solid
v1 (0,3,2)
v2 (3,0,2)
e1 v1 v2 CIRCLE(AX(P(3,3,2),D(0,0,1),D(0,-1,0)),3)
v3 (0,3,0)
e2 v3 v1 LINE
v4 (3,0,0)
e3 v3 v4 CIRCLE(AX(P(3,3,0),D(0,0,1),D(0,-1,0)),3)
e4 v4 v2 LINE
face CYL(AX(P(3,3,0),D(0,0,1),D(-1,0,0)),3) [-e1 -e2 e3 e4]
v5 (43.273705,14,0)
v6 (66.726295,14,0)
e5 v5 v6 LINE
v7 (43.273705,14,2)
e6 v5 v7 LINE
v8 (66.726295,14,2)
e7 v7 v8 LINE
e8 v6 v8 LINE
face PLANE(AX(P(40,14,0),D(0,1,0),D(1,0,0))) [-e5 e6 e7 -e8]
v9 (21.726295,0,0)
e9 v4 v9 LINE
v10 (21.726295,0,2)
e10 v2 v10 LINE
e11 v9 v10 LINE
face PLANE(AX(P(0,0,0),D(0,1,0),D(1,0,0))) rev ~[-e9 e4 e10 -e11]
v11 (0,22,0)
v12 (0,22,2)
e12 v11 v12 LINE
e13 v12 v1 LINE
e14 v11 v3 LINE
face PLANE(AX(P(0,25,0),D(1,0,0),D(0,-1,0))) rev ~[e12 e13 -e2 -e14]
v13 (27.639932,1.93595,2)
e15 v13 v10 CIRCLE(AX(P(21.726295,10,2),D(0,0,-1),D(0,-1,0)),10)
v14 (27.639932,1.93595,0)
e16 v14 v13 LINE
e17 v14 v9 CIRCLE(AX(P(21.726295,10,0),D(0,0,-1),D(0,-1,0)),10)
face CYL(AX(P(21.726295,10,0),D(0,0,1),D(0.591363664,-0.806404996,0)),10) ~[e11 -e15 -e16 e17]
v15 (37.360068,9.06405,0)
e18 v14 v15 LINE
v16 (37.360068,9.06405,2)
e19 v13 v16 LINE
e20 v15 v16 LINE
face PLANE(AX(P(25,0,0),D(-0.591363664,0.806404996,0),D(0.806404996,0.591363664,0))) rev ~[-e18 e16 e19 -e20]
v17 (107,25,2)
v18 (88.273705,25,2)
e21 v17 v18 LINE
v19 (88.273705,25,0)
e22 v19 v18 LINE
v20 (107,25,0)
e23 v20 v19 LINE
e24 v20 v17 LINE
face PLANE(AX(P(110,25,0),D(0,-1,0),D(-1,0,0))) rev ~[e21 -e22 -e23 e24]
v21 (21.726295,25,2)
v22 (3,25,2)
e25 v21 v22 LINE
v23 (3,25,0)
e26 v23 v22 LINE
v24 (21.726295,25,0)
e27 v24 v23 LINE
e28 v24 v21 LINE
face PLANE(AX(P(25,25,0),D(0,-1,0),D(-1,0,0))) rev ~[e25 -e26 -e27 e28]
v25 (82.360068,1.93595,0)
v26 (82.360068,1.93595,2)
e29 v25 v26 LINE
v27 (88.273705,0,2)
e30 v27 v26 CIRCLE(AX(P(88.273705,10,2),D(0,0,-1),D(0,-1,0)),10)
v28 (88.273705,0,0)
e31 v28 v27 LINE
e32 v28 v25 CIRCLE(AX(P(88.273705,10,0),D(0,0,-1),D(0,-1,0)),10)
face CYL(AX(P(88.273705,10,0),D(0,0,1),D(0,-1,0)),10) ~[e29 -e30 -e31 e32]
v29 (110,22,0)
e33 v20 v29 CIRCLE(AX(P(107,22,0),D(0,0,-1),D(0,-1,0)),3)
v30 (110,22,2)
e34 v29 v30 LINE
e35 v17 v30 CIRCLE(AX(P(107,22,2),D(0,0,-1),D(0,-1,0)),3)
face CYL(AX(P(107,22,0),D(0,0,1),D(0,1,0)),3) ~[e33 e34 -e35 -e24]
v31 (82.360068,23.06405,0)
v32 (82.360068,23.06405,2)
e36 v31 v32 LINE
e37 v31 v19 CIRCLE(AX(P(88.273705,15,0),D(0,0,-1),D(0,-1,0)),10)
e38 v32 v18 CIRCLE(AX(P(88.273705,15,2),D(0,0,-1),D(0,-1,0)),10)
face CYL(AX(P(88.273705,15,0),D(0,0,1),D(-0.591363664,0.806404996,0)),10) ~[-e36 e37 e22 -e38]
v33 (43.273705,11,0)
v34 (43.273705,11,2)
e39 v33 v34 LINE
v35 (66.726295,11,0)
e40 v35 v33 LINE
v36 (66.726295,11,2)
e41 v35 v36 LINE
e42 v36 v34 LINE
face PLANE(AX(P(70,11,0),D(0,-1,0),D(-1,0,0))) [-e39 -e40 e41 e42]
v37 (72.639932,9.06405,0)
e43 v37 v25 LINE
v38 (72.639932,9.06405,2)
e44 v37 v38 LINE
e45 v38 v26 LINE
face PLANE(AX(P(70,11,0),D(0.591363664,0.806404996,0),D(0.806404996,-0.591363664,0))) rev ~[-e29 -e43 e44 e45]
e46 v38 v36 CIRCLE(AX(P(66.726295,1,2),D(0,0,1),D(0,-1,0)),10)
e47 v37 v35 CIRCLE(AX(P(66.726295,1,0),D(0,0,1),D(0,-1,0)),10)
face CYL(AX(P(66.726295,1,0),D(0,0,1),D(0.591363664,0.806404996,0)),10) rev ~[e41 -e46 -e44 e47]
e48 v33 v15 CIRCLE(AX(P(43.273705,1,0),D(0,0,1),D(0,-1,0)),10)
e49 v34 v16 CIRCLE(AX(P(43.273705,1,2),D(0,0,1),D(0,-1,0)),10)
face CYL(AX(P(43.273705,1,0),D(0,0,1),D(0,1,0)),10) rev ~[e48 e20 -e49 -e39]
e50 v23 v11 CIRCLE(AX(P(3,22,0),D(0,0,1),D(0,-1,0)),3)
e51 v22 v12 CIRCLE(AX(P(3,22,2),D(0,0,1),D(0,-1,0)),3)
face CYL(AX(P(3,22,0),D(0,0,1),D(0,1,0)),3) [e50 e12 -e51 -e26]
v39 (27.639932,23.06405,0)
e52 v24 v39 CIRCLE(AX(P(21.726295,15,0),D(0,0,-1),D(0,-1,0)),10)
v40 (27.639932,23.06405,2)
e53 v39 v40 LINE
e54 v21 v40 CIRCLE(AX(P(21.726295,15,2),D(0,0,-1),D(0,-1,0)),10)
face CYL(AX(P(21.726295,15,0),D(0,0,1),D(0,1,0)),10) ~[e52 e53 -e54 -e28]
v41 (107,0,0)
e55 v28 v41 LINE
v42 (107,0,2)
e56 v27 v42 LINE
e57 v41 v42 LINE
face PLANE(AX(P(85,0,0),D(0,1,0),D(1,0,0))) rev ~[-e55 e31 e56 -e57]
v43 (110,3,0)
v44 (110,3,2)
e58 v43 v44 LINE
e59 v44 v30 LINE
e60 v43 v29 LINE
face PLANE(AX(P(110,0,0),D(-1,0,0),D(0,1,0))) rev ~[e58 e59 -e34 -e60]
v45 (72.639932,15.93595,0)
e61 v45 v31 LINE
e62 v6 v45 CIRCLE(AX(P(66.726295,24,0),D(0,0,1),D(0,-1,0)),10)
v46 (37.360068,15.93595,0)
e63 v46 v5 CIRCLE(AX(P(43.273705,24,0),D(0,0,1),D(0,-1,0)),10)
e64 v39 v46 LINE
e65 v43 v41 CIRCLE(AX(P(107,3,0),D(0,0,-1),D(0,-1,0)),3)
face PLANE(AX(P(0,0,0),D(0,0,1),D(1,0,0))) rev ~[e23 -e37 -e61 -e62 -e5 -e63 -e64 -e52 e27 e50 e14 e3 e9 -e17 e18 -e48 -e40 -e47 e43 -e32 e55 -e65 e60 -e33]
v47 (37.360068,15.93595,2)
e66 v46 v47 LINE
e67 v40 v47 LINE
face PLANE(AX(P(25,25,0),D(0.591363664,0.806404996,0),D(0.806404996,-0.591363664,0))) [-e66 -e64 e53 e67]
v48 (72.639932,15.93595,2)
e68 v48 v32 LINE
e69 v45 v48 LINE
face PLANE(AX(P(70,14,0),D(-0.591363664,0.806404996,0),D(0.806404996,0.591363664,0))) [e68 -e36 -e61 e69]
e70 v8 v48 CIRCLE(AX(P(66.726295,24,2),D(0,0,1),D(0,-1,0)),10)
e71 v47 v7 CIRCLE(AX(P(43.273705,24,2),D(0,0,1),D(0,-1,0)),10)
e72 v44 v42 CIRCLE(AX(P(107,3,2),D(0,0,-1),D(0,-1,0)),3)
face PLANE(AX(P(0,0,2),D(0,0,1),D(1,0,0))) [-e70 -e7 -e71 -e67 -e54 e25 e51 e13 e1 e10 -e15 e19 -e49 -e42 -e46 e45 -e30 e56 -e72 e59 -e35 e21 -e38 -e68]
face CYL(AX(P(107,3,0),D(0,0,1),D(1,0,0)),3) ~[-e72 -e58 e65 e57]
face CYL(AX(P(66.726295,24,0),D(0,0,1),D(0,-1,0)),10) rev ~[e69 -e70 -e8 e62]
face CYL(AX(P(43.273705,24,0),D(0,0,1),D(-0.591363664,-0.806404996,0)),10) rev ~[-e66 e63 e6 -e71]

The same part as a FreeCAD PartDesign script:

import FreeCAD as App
import Part
import Sketcher


def edges_at(feature, points):
    """Names of the edges that pass closest to the given points."""
    edges = feature.Shape.Edges
    near = lambda p: min(range(len(edges)), key=lambda i: edges[i].distToShape(Part.Vertex(*p))[0])
    return sorted({f"Edge{near(p) + 1}" for p in points})

doc = App.newDocument("Part")
body = doc.addObject("PartDesign::Body", "Body")

sketch1 = body.newObject("Sketcher::SketchObject", "Sketch")
sketch1.AttachmentSupport = (doc.getObject("XY_Plane"), [""])
sketch1.MapMode = "FlatFace"
sketch1.addGeometry([
    Part.LineSegment(App.Vector(0, 25, 0), App.Vector(0, 0, 0)),
    Part.LineSegment(App.Vector(0, 0, 0), App.Vector(25, 0, 0)),
    Part.LineSegment(App.Vector(25, 0, 0), App.Vector(40, 11, 0)),
    Part.LineSegment(App.Vector(40, 11, 0), App.Vector(70, 11, 0)),
    Part.LineSegment(App.Vector(70, 11, 0), App.Vector(85, 0, 0)),
    Part.LineSegment(App.Vector(85, 0, 0), App.Vector(110, 0, 0)),
    Part.LineSegment(App.Vector(110, 0, 0), App.Vector(110, 25, 0)),
    Part.LineSegment(App.Vector(110, 25, 0), App.Vector(85, 25, 0)),
    Part.LineSegment(App.Vector(85, 25, 0), App.Vector(70, 14, 0)),
    Part.LineSegment(App.Vector(70, 14, 0), App.Vector(40, 14, 0)),
    Part.LineSegment(App.Vector(40, 14, 0), App.Vector(25, 25, 0)),
    Part.LineSegment(App.Vector(25, 25, 0), App.Vector(0, 25, 0)),
], False)
sketch1.addConstraint([
    Sketcher.Constraint("Coincident", 0, 2, 1, 1),
    Sketcher.Constraint("Coincident", 1, 2, 2, 1),
    Sketcher.Constraint("Coincident", 2, 2, 3, 1),
    Sketcher.Constraint("Coincident", 3, 2, 4, 1),
    Sketcher.Constraint("Coincident", 4, 2, 5, 1),
    Sketcher.Constraint("Coincident", 5, 2, 6, 1),
    Sketcher.Constraint("Coincident", 6, 2, 7, 1),
    Sketcher.Constraint("Coincident", 7, 2, 8, 1),
    Sketcher.Constraint("Coincident", 8, 2, 9, 1),
    Sketcher.Constraint("Coincident", 9, 2, 10, 1),
    Sketcher.Constraint("Coincident", 10, 2, 11, 1),
    Sketcher.Constraint("Coincident", 11, 2, 0, 1),
    Sketcher.Constraint("Vertical", 0),
    Sketcher.Constraint("Horizontal", 1),
    Sketcher.Constraint("Horizontal", 3),
    Sketcher.Constraint("Horizontal", 5),
    Sketcher.Constraint("Vertical", 6),
    Sketcher.Constraint("Horizontal", 7),
    Sketcher.Constraint("Horizontal", 9),
    Sketcher.Constraint("Horizontal", 11),
    Sketcher.Constraint("Coincident", 0, 2, -1, 1),
    Sketcher.Constraint("PointOnObject", 4, 2, -1),
    Sketcher.Constraint("Parallel", 2, 8),
    Sketcher.Constraint("Parallel", 4, 10),
    Sketcher.Constraint("Horizontal", 7, 2, 10, 2),
    Sketcher.Constraint("Vertical", 4, 2, 7, 2),
    Sketcher.Constraint("Vertical", 3, 2, 8, 2),
    Sketcher.Constraint("Vertical", 2, 2, 9, 2),
    Sketcher.Constraint("Vertical", 1, 2, 10, 2),
    Sketcher.Constraint("Equal", 1, 5),
    Sketcher.Constraint("Equal", 11, 0),
    Sketcher.Constraint("DistanceX", 1, 1, 1, 2, 25.0),
    Sketcher.Constraint("DistanceX", 3, 1, 3, 2, 30.0),
    Sketcher.Constraint("DistanceX", -1, 1, 5, 2, 110.0),
    Sketcher.Constraint("DistanceY", 3, 2, 8, 2, 3.0),
])
pad1 = body.newObject("PartDesign::Pad", "Pad")
pad1.Profile = sketch1
pad1.Length = 2
doc.recompute()

fillet = body.newObject("PartDesign::Fillet", "Fillet")
fillet.Base = (pad1, edges_at(pad1, [
    (25, 25, 1),
    (40, 14, 1),
    (70, 14, 1),
    (85, 25, 1),
    (25, 0, 1),
    (40, 11, 1),
    (70, 11, 1),
    (85, 0, 1),
]))
fillet.Radius = 10
doc.recompute()

fillet2 = body.newObject("PartDesign::Fillet", "Fillet001")
fillet2.Base = (fillet, edges_at(fillet, [
    (0, 25, 1),
    (0, 0, 1),
    (110, 25, 1),
    (110, 0, 1),
]))
fillet2.Radius = 3

doc.recompute()
